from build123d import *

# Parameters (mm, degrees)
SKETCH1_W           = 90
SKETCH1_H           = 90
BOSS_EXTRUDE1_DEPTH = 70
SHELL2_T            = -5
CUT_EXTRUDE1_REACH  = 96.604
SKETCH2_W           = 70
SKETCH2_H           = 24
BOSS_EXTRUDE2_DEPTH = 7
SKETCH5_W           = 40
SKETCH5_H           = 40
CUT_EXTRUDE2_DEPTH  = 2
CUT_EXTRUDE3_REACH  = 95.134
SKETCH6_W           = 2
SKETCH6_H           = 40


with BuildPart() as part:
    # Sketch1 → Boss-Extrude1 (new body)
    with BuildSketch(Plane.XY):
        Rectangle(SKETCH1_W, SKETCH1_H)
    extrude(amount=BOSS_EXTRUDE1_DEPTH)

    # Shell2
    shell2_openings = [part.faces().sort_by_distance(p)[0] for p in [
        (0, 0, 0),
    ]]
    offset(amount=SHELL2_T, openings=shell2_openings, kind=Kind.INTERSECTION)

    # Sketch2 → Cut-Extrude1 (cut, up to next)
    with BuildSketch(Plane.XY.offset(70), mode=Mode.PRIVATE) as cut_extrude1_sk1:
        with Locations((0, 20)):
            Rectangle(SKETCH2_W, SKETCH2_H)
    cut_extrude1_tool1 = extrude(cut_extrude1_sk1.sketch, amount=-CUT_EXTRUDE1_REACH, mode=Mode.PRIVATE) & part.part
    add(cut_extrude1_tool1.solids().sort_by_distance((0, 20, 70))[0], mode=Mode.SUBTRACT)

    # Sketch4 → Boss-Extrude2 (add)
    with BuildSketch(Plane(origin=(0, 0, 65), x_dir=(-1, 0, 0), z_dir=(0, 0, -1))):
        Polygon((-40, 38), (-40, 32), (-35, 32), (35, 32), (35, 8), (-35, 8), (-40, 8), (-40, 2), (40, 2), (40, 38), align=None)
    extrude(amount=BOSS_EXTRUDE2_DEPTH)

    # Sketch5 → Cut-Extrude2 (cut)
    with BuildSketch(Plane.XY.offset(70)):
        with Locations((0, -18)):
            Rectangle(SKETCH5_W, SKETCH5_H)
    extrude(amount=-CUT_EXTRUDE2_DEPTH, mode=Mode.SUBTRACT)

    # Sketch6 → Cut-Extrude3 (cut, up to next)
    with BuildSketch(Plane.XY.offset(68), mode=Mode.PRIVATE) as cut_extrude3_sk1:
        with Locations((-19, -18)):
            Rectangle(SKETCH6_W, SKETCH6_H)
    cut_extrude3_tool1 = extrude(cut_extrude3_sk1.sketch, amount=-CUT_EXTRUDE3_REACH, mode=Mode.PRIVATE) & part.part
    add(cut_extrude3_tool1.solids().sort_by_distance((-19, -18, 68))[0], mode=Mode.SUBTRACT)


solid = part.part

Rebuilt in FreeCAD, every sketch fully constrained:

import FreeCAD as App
import Part
import Sketcher

V = App.Vector


def faces_at(feature, points):
    """Names of the faces that lie closest to the given points."""
    faces = feature.Shape.Faces
    near = lambda p: min(range(len(faces)), key=lambda i: faces[i].distToShape(Part.Vertex(*p))[0])
    return sorted({f"Face{near(p) + 1}" for p in points})


def add_polygon(sketch, points):
    """Adds a closed chain of lines whose ends are joined by coincident constraints."""
    first, n = sketch.GeometryCount, len(points)
    for a, b in zip(points, points[1:] + points[:1]):
        sketch.addGeometry(Part.LineSegment(App.Vector(*a, 0), App.Vector(*b, 0)), False)
    for i in range(n):
        sketch.addConstraint(Sketcher.Constraint("Coincident", first + i, 2, first + (i + 1) % n, 1))

doc = App.newDocument("Part")
body = doc.addObject("PartDesign::Body", "Body")

sketch1 = body.newObject("Sketcher::SketchObject", "Sketch")
sketch1.AttachmentSupport = (doc.getObject("XY_Plane"), [""])
sketch1.MapMode = "FlatFace"
add_polygon(sketch1, [(-45, 45), (-45, -45), (45, -45), (45, 45)])
sketch1.addConstraint([
    Sketcher.Constraint("Vertical", 0),
    Sketcher.Constraint("Horizontal", 1),
    Sketcher.Constraint("Vertical", 2),
    Sketcher.Constraint("Horizontal", 3),
    Sketcher.Constraint("Symmetric", 0, 2, 2, 2, -1, 1),
    Sketcher.Constraint("Equal", 3, 0),
    Sketcher.Constraint("DistanceX", 1, 1, 1, 2, 90.0),
])
pad1 = body.newObject("PartDesign::Pad", "Pad")
pad1.Profile = sketch1
pad1.Length = 70
doc.recompute()

thickness = body.newObject("PartDesign::Thickness", "Thickness")
thickness.Base = (pad1, faces_at(pad1, [(0, 0, 0)]))
thickness.Value = 5
thickness.Reversed = True
thickness.Join = "Intersection"

sketch2 = body.newObject("Sketcher::SketchObject", "Sketch001")
sketch2.AttachmentSupport = (doc.getObject("XY_Plane"), [""])
sketch2.MapMode = "FlatFace"
sketch2.AttachmentOffset = App.Placement(V(0, 0, 70), App.Rotation())
add_polygon(sketch2, [(-35, 32), (-35, 8), (35, 8), (35, 32)])
sketch2.addConstraint([
    Sketcher.Constraint("Vertical", 0),
    Sketcher.Constraint("Horizontal", 1),
    Sketcher.Constraint("Vertical", 2),
    Sketcher.Constraint("Horizontal", 3),
    Sketcher.Constraint("DistanceX", 1, 1, 1, 2, 70.0),
    Sketcher.Constraint("DistanceY", 0, 2, 0, 1, 24.0),
    Sketcher.Constraint("DistanceX", 0, 2, -1, 1, 35.0),
    Sketcher.Constraint("DistanceY", -1, 1, 0, 2, 8.0),
])
pocket1 = body.newObject("PartDesign::Pocket", "Pocket")
pocket1.Profile = sketch2
pocket1.Type = "UpToFirst"

sketch3 = body.newObject("Sketcher::SketchObject", "Sketch002")
sketch3.AttachmentSupport = (doc.getObject("XY_Plane"), [""])
sketch3.MapMode = "FlatFace"
sketch3.AttachmentOffset = App.Placement(V(0, 0, 65), App.Rotation())
add_polygon(sketch3, [(40, 38), (40, 32), (-35, 32), (-35, 8), (40, 8), (40, 2), (-40, 2), (-40, 38)])
sketch3.addConstraint([
    Sketcher.Constraint("Vertical", 0),
    Sketcher.Constraint("Horizontal", 1),
    Sketcher.Constraint("Vertical", 2),
    Sketcher.Constraint("Horizontal", 3),
    Sketcher.Constraint("Vertical", 4),
    Sketcher.Constraint("Horizontal", 5),
    Sketcher.Constraint("Vertical", 6),
    Sketcher.Constraint("Horizontal", 7),
    Sketcher.Constraint("Vertical", 0, 2, 3, 2),
    Sketcher.Constraint("Equal", 0, 4),
    Sketcher.Constraint("DistanceX", 1, 2, 1, 1, 75.0),
    Sketcher.Constraint("DistanceX", 5, 2, 5, 1, 80.0),
    Sketcher.Constraint("DistanceY", 0, 2, 0, 1, 6.0),
    Sketcher.Constraint("DistanceY", 2, 2, 2, 1, 24.0),
    Sketcher.Constraint("DistanceX", -1, 1, 0, 2, 40.0),
    Sketcher.Constraint("DistanceY", -1, 1, 0, 2, 32.0),
])
pad2 = body.newObject("PartDesign::Pad", "Pad001")
pad2.Profile = sketch3
pad2.Length = 7
pad2.Reversed = True

sketch4 = body.newObject("Sketcher::SketchObject", "Sketch003")
sketch4.AttachmentSupport = (doc.getObject("XY_Plane"), [""])
sketch4.MapMode = "FlatFace"
sketch4.AttachmentOffset = App.Placement(V(0, 0, 70), App.Rotation())
add_polygon(sketch4, [(-20, 2), (-20, -38), (20, -38), (20, 2)])
sketch4.addConstraint([
    Sketcher.Constraint("Vertical", 0),
    Sketcher.Constraint("Horizontal", 1),
    Sketcher.Constraint("Vertical", 2),
    Sketcher.Constraint("Horizontal", 3),
    Sketcher.Constraint("Equal", 3, 0),
    Sketcher.Constraint("DistanceX", 1, 1, 1, 2, 40.0),
    Sketcher.Constraint("DistanceX", 0, 2, -1, 1, 20.0),
    Sketcher.Constraint("DistanceY", 0, 2, -1, 1, 38.0),
])
pocket2 = body.newObject("PartDesign::Pocket", "Pocket001")
pocket2.Profile = sketch4
pocket2.Length = 2

sketch5 = body.newObject("Sketcher::SketchObject", "Sketch004")
sketch5.AttachmentSupport = (doc.getObject("XY_Plane"), [""])
sketch5.MapMode = "FlatFace"
sketch5.AttachmentOffset = App.Placement(V(0, 0, 68), App.Rotation())
add_polygon(sketch5, [(-20, 2), (-20, -38), (-18, -38), (-18, 2)])
sketch5.addConstraint([
    Sketcher.Constraint("Vertical", 0),
    Sketcher.Constraint("Horizontal", 1),
    Sketcher.Constraint("Vertical", 2),
    Sketcher.Constraint("Horizontal", 3),
    Sketcher.Constraint("DistanceX", 1, 1, 1, 2, 2.0),
    Sketcher.Constraint("DistanceY", 0, 2, 0, 1, 40.0),
    Sketcher.Constraint("DistanceX", 0, 2, -1, 1, 20.0),
    Sketcher.Constraint("DistanceY", 0, 2, -1, 1, 38.0),
])
pocket3 = body.newObject("PartDesign::Pocket", "Pocket002")
pocket3.Profile = sketch5
pocket3.Type = "UpToFirst"

doc.recompute()
